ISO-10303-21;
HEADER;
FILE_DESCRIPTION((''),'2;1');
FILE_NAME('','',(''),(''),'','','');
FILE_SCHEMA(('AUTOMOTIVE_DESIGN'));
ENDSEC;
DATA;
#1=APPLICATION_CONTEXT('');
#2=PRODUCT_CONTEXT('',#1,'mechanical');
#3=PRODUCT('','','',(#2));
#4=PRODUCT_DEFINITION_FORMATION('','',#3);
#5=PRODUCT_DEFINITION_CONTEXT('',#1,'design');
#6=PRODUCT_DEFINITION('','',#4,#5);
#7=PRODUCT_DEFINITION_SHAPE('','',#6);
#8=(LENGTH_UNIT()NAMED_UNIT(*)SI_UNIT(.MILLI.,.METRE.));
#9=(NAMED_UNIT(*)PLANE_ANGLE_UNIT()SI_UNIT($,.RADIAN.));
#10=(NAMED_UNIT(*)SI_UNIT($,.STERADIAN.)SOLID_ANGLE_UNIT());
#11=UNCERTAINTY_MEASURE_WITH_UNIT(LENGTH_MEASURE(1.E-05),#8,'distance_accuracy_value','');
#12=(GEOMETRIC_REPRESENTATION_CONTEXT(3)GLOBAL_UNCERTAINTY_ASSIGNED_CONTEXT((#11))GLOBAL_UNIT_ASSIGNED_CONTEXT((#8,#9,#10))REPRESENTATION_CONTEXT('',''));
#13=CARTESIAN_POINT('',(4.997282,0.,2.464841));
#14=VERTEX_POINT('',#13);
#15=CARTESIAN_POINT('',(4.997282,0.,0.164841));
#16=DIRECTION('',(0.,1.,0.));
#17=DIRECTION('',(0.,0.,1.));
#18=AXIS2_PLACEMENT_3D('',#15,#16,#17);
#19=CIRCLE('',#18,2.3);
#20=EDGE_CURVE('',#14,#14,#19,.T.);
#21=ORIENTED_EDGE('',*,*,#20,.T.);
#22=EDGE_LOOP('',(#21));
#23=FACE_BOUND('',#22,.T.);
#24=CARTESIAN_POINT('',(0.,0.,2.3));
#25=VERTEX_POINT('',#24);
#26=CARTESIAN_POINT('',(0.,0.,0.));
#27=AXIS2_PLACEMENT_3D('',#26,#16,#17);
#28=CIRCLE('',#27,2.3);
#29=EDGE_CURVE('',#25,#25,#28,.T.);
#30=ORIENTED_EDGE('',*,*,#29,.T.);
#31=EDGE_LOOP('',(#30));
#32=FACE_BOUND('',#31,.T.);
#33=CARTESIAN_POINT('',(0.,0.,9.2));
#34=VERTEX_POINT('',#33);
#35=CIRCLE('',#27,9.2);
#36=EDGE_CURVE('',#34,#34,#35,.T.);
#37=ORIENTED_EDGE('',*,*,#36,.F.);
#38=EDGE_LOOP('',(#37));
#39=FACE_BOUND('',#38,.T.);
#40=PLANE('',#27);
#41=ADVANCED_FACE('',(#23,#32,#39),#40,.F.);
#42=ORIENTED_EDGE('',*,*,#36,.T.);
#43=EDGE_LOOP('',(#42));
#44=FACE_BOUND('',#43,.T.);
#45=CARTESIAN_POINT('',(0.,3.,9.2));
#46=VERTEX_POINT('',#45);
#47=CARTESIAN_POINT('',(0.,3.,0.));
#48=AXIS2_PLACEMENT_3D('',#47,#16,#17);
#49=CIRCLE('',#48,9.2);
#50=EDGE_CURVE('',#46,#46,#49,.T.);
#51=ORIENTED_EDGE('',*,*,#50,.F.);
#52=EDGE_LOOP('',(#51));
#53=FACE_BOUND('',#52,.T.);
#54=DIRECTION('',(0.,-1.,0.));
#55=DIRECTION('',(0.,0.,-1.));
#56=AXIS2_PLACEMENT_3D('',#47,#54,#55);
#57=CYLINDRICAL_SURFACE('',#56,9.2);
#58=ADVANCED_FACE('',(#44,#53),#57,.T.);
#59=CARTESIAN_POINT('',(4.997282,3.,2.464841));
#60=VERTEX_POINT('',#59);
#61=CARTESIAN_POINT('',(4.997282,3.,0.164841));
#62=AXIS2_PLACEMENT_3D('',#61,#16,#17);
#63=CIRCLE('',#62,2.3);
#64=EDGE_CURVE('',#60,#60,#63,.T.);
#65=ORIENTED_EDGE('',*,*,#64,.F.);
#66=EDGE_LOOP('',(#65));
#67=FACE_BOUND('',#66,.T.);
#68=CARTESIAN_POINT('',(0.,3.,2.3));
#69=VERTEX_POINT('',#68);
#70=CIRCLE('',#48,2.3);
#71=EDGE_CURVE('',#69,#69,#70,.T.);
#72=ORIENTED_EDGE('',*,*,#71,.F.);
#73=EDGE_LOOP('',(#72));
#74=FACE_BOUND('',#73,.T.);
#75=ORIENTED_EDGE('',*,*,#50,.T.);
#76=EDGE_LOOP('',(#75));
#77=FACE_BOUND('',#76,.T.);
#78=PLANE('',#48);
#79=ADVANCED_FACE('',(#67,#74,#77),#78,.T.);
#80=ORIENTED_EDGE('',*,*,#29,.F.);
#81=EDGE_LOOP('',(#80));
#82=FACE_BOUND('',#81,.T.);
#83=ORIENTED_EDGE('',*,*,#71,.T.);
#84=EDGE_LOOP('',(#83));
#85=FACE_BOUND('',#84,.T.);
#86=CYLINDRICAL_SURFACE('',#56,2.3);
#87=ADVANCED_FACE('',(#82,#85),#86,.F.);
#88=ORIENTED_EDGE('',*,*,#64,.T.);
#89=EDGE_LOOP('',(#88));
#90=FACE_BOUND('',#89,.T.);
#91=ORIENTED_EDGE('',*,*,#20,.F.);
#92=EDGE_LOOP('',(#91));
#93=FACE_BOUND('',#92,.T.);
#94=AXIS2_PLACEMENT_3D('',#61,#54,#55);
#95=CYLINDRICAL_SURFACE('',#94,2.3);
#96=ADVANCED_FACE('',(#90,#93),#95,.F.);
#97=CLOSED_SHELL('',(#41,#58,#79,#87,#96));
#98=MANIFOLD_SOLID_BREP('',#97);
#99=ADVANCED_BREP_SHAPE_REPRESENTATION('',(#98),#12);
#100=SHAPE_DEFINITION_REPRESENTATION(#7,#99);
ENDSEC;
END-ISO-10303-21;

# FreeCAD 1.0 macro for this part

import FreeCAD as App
import Part
import Sketcher
from FreeCAD import Vector

doc = App.newDocument("Part")
body = doc.addObject("PartDesign::Body", "Body")

sketch1 = doc.addObject("Sketcher::SketchObject", "Sketch")
body.addObject(sketch1)
sketch1.AttachmentSupport = (doc.XZ_Plane, [""])
sketch1.MapMode = "FlatFace"
sketch1.addGeometry([
    Part.Circle(Vector(0, 0, 0), Vector(0, 0, 1), 9.2),
    Part.Circle(Vector(5, 0.2, 0), Vector(0, 0, 1), 2.3),
    Part.Circle(Vector(0, 0, 0), Vector(0, 0, 1), 2.3),
], False)
sketch1.addConstraint([
    Sketcher.Constraint("Coincident", 0, 3, -1, 1),
    Sketcher.Constraint("Coincident", 2, 3, -1, 1),
    Sketcher.Constraint("Equal", 1, 2),
    Sketcher.Constraint("Diameter", 0, 18.4),
    Sketcher.Constraint("Diameter", 1, 4.6),
    Sketcher.Constraint("DistanceX", -1, 1, 1, 3, 4.997282),
    Sketcher.Constraint("DistanceY", -1, 1, 1, 3, 0.164841),
])
pad1 = doc.addObject("PartDesign::Pad", "Pad")
body.addObject(pad1)
pad1.Profile = sketch1
pad1.Length = 3
pad1.Reversed = True

doc.recompute()
